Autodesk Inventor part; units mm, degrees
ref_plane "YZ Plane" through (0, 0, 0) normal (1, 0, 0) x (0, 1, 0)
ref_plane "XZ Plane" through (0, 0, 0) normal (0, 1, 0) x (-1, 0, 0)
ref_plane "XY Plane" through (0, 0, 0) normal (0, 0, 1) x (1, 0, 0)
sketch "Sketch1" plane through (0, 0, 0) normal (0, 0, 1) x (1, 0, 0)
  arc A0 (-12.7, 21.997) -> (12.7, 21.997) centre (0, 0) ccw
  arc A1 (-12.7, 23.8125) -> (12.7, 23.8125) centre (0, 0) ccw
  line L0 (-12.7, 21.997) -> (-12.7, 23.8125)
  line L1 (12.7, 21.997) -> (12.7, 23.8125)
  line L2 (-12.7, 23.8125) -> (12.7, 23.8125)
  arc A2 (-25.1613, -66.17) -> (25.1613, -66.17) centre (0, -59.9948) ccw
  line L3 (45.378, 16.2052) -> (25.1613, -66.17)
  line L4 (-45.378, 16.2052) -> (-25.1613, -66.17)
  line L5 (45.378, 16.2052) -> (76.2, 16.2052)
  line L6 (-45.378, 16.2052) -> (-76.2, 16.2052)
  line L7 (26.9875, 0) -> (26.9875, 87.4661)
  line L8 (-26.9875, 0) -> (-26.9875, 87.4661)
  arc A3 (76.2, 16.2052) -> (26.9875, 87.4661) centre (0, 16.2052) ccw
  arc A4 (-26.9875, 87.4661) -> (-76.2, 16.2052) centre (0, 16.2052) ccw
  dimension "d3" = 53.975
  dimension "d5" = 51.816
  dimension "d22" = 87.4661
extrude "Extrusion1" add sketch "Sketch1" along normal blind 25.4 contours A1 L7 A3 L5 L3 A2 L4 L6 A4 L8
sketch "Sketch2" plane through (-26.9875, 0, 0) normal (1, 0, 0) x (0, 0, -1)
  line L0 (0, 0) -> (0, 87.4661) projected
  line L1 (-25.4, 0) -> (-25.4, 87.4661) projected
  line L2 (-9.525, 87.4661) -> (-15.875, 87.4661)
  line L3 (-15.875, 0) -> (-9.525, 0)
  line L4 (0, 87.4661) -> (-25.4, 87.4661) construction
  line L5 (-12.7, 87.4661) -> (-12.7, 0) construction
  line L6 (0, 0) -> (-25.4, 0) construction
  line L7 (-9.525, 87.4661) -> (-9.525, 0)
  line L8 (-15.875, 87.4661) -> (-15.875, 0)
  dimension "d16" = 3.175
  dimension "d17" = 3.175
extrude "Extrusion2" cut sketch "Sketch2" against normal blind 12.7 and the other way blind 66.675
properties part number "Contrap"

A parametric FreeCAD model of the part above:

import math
import FreeCAD as App
import Part
import Sketcher
from FreeCAD import Vector
Q = App.Units.Quantity

doc = App.newDocument("Part")
body = doc.addObject("PartDesign::Body", "Body")

# Sketch on XY plane
sketch1 = body.newObject("Sketcher::SketchObject", "Sketch")
sketch1.AttachmentSupport = (doc.getObject("XY_Plane"), [""])
sketch1.MapMode = "FlatFace"
sketch1.addGeometry([
    Part.ArcOfCircle(Part.Circle(Vector(0, 0, 0), Vector(0, 0, 1), 27), math.radians(180), math.radians(360)),  # 0
    Part.LineSegment(Vector(-27, 0, 0), Vector(-27, 87, 0)),  # 1
    Part.ArcOfCircle(Part.Circle(Vector(0, 16, 0), Vector(0, 0, 1), 76), math.radians(111), math.radians(180)),  # 2
    Part.LineSegment(Vector(-76, 16, 0), Vector(-45, 16, 0)),  # 3
    Part.LineSegment(Vector(-45, 16, 0), Vector(-25, -66, 0)),  # 4
    Part.ArcOfCircle(Part.Circle(Vector(0, -60, 0), Vector(0, 0, 1), 26), math.radians(-166), math.radians(-14)),  # 5
    Part.LineSegment(Vector(25, -66, 0), Vector(45, 16, 0)),  # 6
    Part.LineSegment(Vector(45, 16, 0), Vector(76, 16, 0)),  # 7
    Part.ArcOfCircle(Part.Circle(Vector(0, 16, 0), Vector(0, 0, 1), 76), math.radians(0), math.radians(69)),  # 8
    Part.LineSegment(Vector(27, 87, 0), Vector(27, 0, 0)),  # 9
], False)
sketch1.addConstraint([
    Sketcher.Constraint("Tangent", 0, 1, 1, 1),
    Sketcher.Constraint("Coincident", 1, 2, 2, 1),
    Sketcher.Constraint("Coincident", 2, 2, 3, 1),
    Sketcher.Constraint("Coincident", 3, 2, 4, 1),
    Sketcher.Constraint("Tangent", 4, 2, 5, 1),
    Sketcher.Constraint("Tangent", 5, 2, 6, 1),
    Sketcher.Constraint("Coincident", 6, 2, 7, 1),
    Sketcher.Constraint("Coincident", 7, 2, 8, 1),
    Sketcher.Constraint("Coincident", 8, 2, 9, 1),
    Sketcher.Constraint("Tangent", 9, 2, 0, 2),
    Sketcher.Constraint("Vertical", 1),
    Sketcher.Constraint("Horizontal", 3),
    Sketcher.Constraint("Horizontal", 7),
    Sketcher.Constraint("Vertical", 9),
    Sketcher.Constraint("Coincident", 0, 3, -1, 1),
    Sketcher.Constraint("Coincident", 8, 3, 2, 3),
    Sketcher.Constraint("Equal", 2, 8),
    Sketcher.Constraint("Symmetric", 4, 2, 5, 2, -2),
    Sketcher.Constraint("Symmetric", 2, 2, 7, 2, -2),
    Sketcher.Constraint("Horizontal", 8, 3, 2, 2),
    Sketcher.Constraint("Radius", 5, Q("1.02 in")),
    Sketcher.Constraint("Radius", 0, Q("1.0625 in")),
    Sketcher.Constraint("Radius", 2, Q("3 in")),
    Sketcher.Constraint("DistanceY", 5, 3, 2, 3, Q("3 in")),
    Sketcher.Constraint("DistanceY", 1, 1, 1, 2, Q("87.466 mm")),
    Sketcher.Constraint("Angle", 4, Q("-76.211 deg")),
])
pad1 = body.newObject("PartDesign::Pad", "Pad")
pad1.Profile = sketch1
pad1.Length = Q("1 in")

# Sketch on YZ plane
sketch2 = body.newObject("Sketcher::SketchObject", "Sketch001")
sketch2.AttachmentSupport = (doc.getObject("YZ_Plane"), [""])
sketch2.MapMode = "FlatFace"
sketch2.AttachmentOffset = App.Placement(Vector(0, 0, -1.0625 * 25.4), App.Rotation())
sketch2.addGeometry([
    Part.LineSegment(Vector(0, 10, 0), Vector(87, 10, 0)),
    Part.LineSegment(Vector(87, 10, 0), Vector(87, 16, 0)),
    Part.LineSegment(Vector(87, 16, 0), Vector(0, 16, 0)),
    Part.LineSegment(Vector(0, 16, 0), Vector(0, 10, 0)),
], False)
sketch2.addConstraint([
    Sketcher.Constraint("Coincident", 0, 2, 1, 1),
    Sketcher.Constraint("Coincident", 1, 2, 2, 1),
    Sketcher.Constraint("Coincident", 2, 2, 3, 1),
    Sketcher.Constraint("Coincident", 3, 2, 0, 1),
    Sketcher.Constraint("Horizontal", 0),
    Sketcher.Constraint("Vertical", 1),
    Sketcher.Constraint("Horizontal", 2),
    Sketcher.Constraint("Vertical", 3),
    Sketcher.Constraint("PointOnObject", 2, 2, -2),
    Sketcher.Constraint("DistanceY", 1, 1, 1, 2, Q("0.25 in")),
    Sketcher.Constraint("DistanceY", -1, 1, 0, 2, Q("0.375 in")),
    Sketcher.Constraint("DistanceX", 0, 1, 0, 2, Q("87.466 mm")),
])
pocket1 = body.newObject("PartDesign::Pocket", "Pocket")
pocket1.Profile = sketch2
pocket1.Type = "TwoLengths"
pocket1.Length = Q("0.5 in")
pocket1.Length2 = Q("2.625 in")

doc.recompute()
